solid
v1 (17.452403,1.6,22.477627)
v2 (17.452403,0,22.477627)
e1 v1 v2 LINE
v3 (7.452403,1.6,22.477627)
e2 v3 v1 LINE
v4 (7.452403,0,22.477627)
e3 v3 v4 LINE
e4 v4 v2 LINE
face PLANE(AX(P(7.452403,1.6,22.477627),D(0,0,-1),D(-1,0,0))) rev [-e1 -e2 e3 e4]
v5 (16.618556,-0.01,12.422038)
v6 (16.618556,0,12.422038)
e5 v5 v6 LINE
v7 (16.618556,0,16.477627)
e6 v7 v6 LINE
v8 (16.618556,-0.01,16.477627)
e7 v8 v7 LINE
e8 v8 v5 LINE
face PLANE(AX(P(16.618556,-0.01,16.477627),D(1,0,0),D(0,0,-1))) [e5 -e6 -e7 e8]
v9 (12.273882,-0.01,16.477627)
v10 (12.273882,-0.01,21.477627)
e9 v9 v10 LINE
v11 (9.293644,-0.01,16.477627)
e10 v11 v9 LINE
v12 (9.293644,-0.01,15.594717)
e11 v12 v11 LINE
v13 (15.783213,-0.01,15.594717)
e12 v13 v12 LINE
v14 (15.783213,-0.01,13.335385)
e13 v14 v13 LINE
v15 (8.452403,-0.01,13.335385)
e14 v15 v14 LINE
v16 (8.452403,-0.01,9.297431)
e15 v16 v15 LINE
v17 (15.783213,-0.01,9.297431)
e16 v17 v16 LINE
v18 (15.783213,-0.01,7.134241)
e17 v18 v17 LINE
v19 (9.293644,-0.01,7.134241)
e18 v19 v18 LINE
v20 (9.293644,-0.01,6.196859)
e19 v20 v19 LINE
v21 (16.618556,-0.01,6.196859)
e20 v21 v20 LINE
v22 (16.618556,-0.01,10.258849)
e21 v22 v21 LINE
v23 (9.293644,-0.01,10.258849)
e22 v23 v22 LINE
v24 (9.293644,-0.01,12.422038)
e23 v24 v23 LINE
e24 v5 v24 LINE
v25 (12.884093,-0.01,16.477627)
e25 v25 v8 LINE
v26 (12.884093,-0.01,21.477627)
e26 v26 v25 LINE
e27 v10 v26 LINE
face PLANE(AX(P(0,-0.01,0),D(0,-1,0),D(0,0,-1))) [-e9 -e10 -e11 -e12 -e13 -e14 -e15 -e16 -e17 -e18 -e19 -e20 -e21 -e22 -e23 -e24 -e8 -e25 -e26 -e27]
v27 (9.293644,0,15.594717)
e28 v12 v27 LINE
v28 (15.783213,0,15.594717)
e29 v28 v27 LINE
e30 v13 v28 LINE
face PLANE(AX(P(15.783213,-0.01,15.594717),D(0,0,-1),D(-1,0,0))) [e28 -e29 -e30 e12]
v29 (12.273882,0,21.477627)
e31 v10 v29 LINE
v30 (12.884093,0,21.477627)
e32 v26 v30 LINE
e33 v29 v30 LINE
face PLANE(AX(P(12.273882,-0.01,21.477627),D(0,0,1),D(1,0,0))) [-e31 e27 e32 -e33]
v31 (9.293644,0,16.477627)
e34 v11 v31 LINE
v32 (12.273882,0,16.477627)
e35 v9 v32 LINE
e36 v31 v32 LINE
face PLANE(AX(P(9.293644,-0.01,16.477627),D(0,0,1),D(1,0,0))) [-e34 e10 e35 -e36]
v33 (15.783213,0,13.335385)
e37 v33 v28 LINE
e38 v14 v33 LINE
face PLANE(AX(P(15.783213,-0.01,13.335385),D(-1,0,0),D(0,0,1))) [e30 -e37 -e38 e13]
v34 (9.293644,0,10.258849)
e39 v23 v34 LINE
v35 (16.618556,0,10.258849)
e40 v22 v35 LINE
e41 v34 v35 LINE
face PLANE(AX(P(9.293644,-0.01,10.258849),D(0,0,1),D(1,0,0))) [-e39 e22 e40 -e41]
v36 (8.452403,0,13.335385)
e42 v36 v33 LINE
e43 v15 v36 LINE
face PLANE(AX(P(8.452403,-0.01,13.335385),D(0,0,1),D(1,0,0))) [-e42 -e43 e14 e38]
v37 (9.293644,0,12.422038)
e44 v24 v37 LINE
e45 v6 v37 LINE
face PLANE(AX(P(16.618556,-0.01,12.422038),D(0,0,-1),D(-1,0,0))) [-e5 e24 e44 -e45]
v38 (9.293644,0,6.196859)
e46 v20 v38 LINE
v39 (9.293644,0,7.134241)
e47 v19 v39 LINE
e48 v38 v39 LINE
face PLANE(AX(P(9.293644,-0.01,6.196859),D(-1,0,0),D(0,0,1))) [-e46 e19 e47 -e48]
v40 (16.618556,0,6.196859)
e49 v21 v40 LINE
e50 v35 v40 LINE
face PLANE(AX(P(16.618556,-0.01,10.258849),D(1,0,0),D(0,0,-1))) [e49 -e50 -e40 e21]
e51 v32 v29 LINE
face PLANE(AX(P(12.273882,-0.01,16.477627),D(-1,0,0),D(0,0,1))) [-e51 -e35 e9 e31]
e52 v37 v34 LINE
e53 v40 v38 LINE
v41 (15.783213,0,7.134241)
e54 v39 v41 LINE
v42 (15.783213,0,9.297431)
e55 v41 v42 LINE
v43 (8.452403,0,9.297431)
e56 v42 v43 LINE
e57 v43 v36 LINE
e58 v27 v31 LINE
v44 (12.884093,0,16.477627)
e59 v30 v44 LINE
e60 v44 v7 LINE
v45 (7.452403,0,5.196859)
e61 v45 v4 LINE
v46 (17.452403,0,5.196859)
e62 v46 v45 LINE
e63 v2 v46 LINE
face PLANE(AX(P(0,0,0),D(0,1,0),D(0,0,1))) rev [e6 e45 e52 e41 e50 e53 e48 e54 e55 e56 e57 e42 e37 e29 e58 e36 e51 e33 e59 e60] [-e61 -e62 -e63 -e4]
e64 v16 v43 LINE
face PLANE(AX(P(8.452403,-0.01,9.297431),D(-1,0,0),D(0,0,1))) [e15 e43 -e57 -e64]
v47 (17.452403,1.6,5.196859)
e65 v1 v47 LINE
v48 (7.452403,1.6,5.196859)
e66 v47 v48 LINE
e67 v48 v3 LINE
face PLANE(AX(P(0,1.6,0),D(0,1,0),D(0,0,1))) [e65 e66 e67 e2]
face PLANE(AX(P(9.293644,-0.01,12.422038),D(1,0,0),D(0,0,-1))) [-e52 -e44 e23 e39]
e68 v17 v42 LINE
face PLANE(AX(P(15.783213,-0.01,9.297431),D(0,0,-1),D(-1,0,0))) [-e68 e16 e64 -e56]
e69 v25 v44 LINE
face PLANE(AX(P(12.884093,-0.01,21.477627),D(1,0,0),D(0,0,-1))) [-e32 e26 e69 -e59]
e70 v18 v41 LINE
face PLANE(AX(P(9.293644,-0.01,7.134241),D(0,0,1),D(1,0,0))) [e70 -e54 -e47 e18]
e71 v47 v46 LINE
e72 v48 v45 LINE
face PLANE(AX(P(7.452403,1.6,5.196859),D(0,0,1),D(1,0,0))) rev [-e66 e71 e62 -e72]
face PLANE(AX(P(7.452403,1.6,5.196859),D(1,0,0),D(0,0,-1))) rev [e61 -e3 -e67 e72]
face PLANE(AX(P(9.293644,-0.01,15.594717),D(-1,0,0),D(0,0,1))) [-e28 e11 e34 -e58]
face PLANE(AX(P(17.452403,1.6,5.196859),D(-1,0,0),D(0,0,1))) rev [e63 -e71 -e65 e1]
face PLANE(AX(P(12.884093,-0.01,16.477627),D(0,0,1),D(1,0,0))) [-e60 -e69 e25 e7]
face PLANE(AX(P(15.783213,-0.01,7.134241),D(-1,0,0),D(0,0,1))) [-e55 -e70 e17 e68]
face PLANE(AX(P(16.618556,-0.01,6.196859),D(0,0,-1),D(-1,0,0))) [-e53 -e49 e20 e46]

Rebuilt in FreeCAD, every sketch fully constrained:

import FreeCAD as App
import Part
import Sketcher

V = App.Vector


def add_polygon(sketch, points):
    """Adds a closed chain of lines whose ends are joined by coincident constraints."""
    first, n = sketch.GeometryCount, len(points)
    for a, b in zip(points, points[1:] + points[:1]):
        sketch.addGeometry(Part.LineSegment(App.Vector(*a, 0), App.Vector(*b, 0)), False)
    for i in range(n):
        sketch.addConstraint(Sketcher.Constraint("Coincident", first + i, 2, first + (i + 1) % n, 1))

doc = App.newDocument("Part")
body = doc.addObject("PartDesign::Body", "Body")

sketch1 = doc.addObject("Sketcher::SketchObject", "Sketch")
body.addObject(sketch1)
sketch1.AttachmentSupport = (doc.XZ_Plane, [""])
sketch1.MapMode = "FlatFace"
add_polygon(sketch1, [(7, 5), (7, 22), (17, 22), (17, 5)])
sketch1.addConstraint([
    Sketcher.Constraint("Vertical", 0),
    Sketcher.Constraint("Horizontal", 1),
    Sketcher.Constraint("Vertical", 2),
    Sketcher.Constraint("Horizontal", 3),
    Sketcher.Constraint("DistanceX", 1, 1, 1, 2, 10.0),
    Sketcher.Constraint("DistanceY", 0, 1, 0, 2, 17.280768),
    Sketcher.Constraint("DistanceY", -1, 1, 2, 2, 5.196859),
    Sketcher.Constraint("DistanceX", -1, 1, 0, 2, 7.452403),
])
pad1 = doc.addObject("PartDesign::Pad", "Pad")
body.addObject(pad1)
pad1.Profile = sketch1
pad1.Length = 1.6
pad1.Reversed = True

sketch2 = doc.addObject("Sketcher::SketchObject", "Sketch001")
body.addObject(sketch2)
sketch2.AttachmentSupport = (doc.XZ_Plane, [""])
sketch2.MapMode = "FlatFace"
add_polygon(sketch2, [(12.3, 21.5), (12.9, 21.5), (12.9, 16.5), (16.6, 16.5), (16.6, 12.4), (9.3, 12.4), (9.3, 10.3), (16.6, 10.3), (16.6, 6.2), (9.3, 6.2), (9.3, 7.1), (15.8, 7.1), (15.8, 9.3), (8.5, 9.3), (8.5, 13.3), (15.8, 13.3), (15.8, 15.6), (9.3, 15.6), (9.3, 16.5), (12.3, 16.5)])
sketch2.addConstraint([
    Sketcher.Constraint("Horizontal", 0),
    Sketcher.Constraint("Vertical", 1),
    Sketcher.Constraint("Horizontal", 2),
    Sketcher.Constraint("Vertical", 3),
    Sketcher.Constraint("Horizontal", 4),
    Sketcher.Constraint("Vertical", 5),
    Sketcher.Constraint("Horizontal", 6),
    Sketcher.Constraint("Vertical", 7),
    Sketcher.Constraint("Horizontal", 8),
    Sketcher.Constraint("Vertical", 9),
    Sketcher.Constraint("Horizontal", 10),
    Sketcher.Constraint("Vertical", 11),
    Sketcher.Constraint("Horizontal", 12),
    Sketcher.Constraint("Vertical", 13),
    Sketcher.Constraint("Horizontal", 14),
    Sketcher.Constraint("Vertical", 15),
    Sketcher.Constraint("Horizontal", 16),
    Sketcher.Constraint("Vertical", 17),
    Sketcher.Constraint("Horizontal", 18),
    Sketcher.Constraint("Vertical", 19),
    Sketcher.Constraint("Horizontal", 2, 2, 17, 2),
    Sketcher.Constraint("Vertical", 3, 2, 6, 2),
    Sketcher.Constraint("Vertical", 5, 2, 8, 2),
    Sketcher.Constraint("Vertical", 11, 2, 14, 2),
    Sketcher.Constraint("Vertical", 9, 2, 16, 2),
    Sketcher.Constraint("Equal", 5, 11),
    Sketcher.Constraint("DistanceY", 1, 2, 1, 1, 5.0),
    Sketcher.Constraint("DistanceX", 0, 1, 0, 2, 0.610211),
    Sketcher.Constraint("DistanceX", 10, 1, 10, 2, 6.48957),
    Sketcher.Constraint("DistanceX", 12, 2, 12, 1, 7.33081),
    Sketcher.Constraint("DistanceX", 18, 1, 18, 2, 2.980238),
    Sketcher.Constraint("DistanceY", 3, 2, 3, 1, 4.055588),
    Sketcher.Constraint("DistanceY", 5, 2, 5, 1, 2.16319),
    Sketcher.Constraint("DistanceY", 7, 2, 7, 1, 4.06199),
    Sketcher.Constraint("DistanceY", 15, 1, 15, 2, 2.259332),
    Sketcher.Constraint("DistanceY", 17, 1, 17, 2, 0.88291),
    Sketcher.Constraint("DistanceX", 2, 1, 2, 2, 3.734463),
    Sketcher.Constraint("DistanceY", 9, 1, 9, 2, 0.937382),
    Sketcher.Constraint("DistanceY", -1, 1, 3, 2, 12.422038),
    Sketcher.Constraint("DistanceX", -1, 1, 0, 2, 12.884093),
])
pad2 = doc.addObject("PartDesign::Pad", "Pad001")
body.addObject(pad2)
pad2.Profile = sketch2
pad2.Length = 0.01

doc.recompute()
